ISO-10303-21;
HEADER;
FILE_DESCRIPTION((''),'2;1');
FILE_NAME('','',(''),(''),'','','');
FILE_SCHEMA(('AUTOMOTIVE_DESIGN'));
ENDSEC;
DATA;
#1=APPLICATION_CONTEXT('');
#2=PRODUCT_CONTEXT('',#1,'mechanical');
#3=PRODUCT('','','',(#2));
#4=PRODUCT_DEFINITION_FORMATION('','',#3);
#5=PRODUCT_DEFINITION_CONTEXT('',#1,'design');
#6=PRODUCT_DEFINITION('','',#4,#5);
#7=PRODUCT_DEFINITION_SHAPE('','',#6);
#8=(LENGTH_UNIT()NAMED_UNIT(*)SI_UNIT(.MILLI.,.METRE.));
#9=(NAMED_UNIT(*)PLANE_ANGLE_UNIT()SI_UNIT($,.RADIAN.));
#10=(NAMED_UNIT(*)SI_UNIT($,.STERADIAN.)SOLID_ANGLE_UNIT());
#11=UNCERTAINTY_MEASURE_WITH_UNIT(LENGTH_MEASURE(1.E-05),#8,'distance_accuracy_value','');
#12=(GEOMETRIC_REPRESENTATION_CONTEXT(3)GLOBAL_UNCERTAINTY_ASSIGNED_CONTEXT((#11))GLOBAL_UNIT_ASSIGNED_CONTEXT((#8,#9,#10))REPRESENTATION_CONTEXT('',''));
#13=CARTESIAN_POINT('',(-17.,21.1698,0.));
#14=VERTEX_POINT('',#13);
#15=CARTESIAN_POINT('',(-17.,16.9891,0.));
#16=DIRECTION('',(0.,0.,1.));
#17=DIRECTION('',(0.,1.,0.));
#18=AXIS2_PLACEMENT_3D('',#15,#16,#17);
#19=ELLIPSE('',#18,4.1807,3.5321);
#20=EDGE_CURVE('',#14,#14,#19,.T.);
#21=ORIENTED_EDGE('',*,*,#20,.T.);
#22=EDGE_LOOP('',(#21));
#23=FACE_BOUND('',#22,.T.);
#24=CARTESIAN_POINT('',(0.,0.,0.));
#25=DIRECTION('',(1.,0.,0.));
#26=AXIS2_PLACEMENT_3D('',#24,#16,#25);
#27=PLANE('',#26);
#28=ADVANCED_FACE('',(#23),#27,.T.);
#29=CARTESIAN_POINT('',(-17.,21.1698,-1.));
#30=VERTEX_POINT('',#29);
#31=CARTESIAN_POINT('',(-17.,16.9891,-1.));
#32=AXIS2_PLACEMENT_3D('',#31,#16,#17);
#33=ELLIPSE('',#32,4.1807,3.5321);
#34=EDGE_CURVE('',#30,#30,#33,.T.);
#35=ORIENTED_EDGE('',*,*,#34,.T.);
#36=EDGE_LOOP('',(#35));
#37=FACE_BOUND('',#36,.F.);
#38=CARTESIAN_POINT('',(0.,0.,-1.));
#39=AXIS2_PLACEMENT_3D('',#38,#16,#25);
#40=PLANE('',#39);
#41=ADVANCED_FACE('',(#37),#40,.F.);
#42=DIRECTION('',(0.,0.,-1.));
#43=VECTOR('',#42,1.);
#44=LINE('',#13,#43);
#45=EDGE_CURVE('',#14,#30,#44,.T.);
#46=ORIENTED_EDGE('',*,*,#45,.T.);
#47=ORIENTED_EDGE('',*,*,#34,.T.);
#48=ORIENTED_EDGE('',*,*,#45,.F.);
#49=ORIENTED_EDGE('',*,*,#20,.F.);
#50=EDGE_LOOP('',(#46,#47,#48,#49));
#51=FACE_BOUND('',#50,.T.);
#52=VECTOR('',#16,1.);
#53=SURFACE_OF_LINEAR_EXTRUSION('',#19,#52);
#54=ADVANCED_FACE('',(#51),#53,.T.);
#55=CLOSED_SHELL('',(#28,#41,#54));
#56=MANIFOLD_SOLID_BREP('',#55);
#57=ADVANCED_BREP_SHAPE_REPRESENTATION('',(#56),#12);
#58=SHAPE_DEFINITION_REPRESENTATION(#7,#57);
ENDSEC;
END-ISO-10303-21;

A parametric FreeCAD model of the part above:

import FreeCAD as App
import Part
import Sketcher
from FreeCAD import Vector

doc = App.newDocument("Part")
params = doc.addObject("Spreadsheet::Sheet", "Params")
for row, (alias, value) in enumerate([
    ("pad1_length", "1 mm"),
], start=1):
    params.set(f"A{row}", alias)
    params.set(f"B{row}", "=" + value)
    params.setAlias(f"B{row}", alias)

body = doc.addObject("PartDesign::Body", "Body")

# Sketch on XY plane
sketch1 = body.newObject("Sketcher::SketchObject", "Sketch")
sketch1.AttachmentSupport = (doc.getObject("XY_Plane"), [""])
sketch1.MapMode = "FlatFace"
sketch1.addGeometry(Part.Ellipse(Vector(-17, 21.1698, 0), Vector(-20.5321, 16.9891, 0), Vector(-17, 16.9891, 0)), False)
sketch1.addConstraint(Sketcher.Constraint("Block", 0))
pad1 = body.newObject("PartDesign::Pad", "Pad")
pad1.Profile = sketch1
pad1.setExpression("Length", "Params.pad1_length")
pad1.Reversed = True

doc.recompute()
